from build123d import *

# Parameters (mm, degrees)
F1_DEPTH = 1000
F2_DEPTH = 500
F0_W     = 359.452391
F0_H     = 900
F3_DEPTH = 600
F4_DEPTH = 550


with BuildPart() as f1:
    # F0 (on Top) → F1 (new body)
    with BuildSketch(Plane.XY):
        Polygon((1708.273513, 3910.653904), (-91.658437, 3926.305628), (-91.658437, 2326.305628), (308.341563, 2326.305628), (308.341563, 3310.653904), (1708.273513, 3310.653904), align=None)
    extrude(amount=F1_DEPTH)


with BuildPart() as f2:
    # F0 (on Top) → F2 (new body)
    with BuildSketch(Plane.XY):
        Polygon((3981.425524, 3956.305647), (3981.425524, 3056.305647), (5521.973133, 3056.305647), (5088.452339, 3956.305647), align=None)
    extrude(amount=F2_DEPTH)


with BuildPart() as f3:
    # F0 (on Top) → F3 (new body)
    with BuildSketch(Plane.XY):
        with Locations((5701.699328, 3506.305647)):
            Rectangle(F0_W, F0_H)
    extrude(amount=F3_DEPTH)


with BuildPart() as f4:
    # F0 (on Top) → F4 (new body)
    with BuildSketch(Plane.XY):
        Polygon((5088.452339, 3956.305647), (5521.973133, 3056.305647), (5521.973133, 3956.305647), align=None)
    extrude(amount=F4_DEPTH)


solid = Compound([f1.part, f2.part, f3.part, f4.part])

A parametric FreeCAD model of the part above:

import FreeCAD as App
import Part
import Sketcher

V = App.Vector
Q = App.Units.Quantity

doc = App.newDocument("Part")
body = doc.addObject("PartDesign::Body", "Body")

sketch1 = body.newObject("Sketcher::SketchObject", "Sketch")
sketch1.AttachmentSupport = (doc.getObject("XY_Plane"), [""])
sketch1.MapMode = "FlatFace"
sketch1.addGeometry([
    Part.LineSegment(V(1708.273513, 3910.653904, 0), V(-91.658437, 3926.305628, 0)),
    Part.LineSegment(V(-91.658437, 3926.305628, 0), V(-91.658437, 2326.305628, 0)),
    Part.LineSegment(V(-91.658437, 2326.305628, 0), V(308.341563, 2326.305628, 0)),
    Part.LineSegment(V(308.341563, 2326.305628, 0), V(308.341563, 3310.653904, 0)),
    Part.LineSegment(V(308.341563, 3310.653904, 0), V(1708.273513, 3310.653904, 0)),
    Part.LineSegment(V(1708.273513, 3310.653904, 0), V(1708.273513, 3910.653904, 0)),
], False)
sketch1.addConstraint([
    Sketcher.Constraint("Coincident", 0, 2, 1, 1),
    Sketcher.Constraint("Coincident", 1, 2, 2, 1),
    Sketcher.Constraint("Coincident", 2, 2, 3, 1),
    Sketcher.Constraint("Coincident", 3, 2, 4, 1),
    Sketcher.Constraint("Coincident", 4, 2, 5, 1),
    Sketcher.Constraint("Coincident", 5, 2, 0, 1),
    Sketcher.Constraint("Vertical", 1),
    Sketcher.Constraint("Horizontal", 2),
    Sketcher.Constraint("Vertical", 3),
    Sketcher.Constraint("Horizontal", 4),
    Sketcher.Constraint("Vertical", 5),
    Sketcher.Constraint("DistanceX", 2, 1, 2, 2, Q("400 mm")),
    Sketcher.Constraint("DistanceY", 1, 2, 1, 1, Q("1600 mm")),
    Sketcher.Constraint("DistanceY", 5, 1, 5, 2, Q("600 mm")),
    Sketcher.Constraint("Distance", 0, Q("1800 mm")),
    Sketcher.Constraint("DistanceX", 4, 1, 4, 2, Q("1399.93195 mm")),
    Sketcher.Constraint("DistanceY", -1, 1, 0, 2, Q("3926.305628 mm")),
    Sketcher.Constraint("DistanceX", 0, 2, -1, 1, Q("91.658437 mm")),
])
pad1 = body.newObject("PartDesign::Pad", "Pad")
pad1.Profile = sketch1
pad1.Length = 1000
body2 = doc.addObject("PartDesign::Body", "Body001")

sketch2 = body2.newObject("Sketcher::SketchObject", "Sketch001")
sketch2.AttachmentSupport = (doc.getObject("XY_Plane001"), [""])
sketch2.MapMode = "FlatFace"
sketch2.addGeometry([
    Part.LineSegment(V(3981, 3956, 0), V(3981, 3056, 0)),
    Part.LineSegment(V(3981, 3056, 0), V(5522, 3056, 0)),
    Part.LineSegment(V(5522, 3056, 0), V(5088, 3956, 0)),
    Part.LineSegment(V(5088, 3956, 0), V(3981, 3956, 0)),
], False)
sketch2.addConstraint([
    Sketcher.Constraint("Coincident", 0, 2, 1, 1),
    Sketcher.Constraint("Coincident", 1, 2, 2, 1),
    Sketcher.Constraint("Coincident", 2, 2, 3, 1),
    Sketcher.Constraint("Coincident", 3, 2, 0, 1),
    Sketcher.Constraint("Vertical", 0),
    Sketcher.Constraint("Horizontal", 1),
    Sketcher.Constraint("Horizontal", 3),
    Sketcher.Constraint("DistanceY", 0, 2, 0, 1, Q("900 mm")),
    Sketcher.Constraint("DistanceX", 1, 1, 1, 2, Q("1540.547609 mm")),
    Sketcher.Constraint("Distance", 2, Q("998.969609 mm")),
    Sketcher.Constraint("DistanceX", -1, 1, 2, 2, Q("5088.452339 mm")),
    Sketcher.Constraint("DistanceY", -1, 1, 0, 2, Q("3056.305647 mm")),
])
pad2 = body2.newObject("PartDesign::Pad", "Pad001")
pad2.Profile = sketch2
pad2.Length = 500
body3 = doc.addObject("PartDesign::Body", "Body002")

sketch3 = body3.newObject("Sketcher::SketchObject", "Sketch002")
sketch3.AttachmentSupport = (doc.getObject("XY_Plane002"), [""])
sketch3.MapMode = "FlatFace"
sketch3.addGeometry([
    Part.LineSegment(V(5522, 3956, 0), V(5522, 3056, 0)),
    Part.LineSegment(V(5522, 3056, 0), V(5881, 3056, 0)),
    Part.LineSegment(V(5881, 3056, 0), V(5881, 3956, 0)),
    Part.LineSegment(V(5881, 3956, 0), V(5522, 3956, 0)),
], False)
sketch3.addConstraint([
    Sketcher.Constraint("Coincident", 0, 2, 1, 1),
    Sketcher.Constraint("Coincident", 1, 2, 2, 1),
    Sketcher.Constraint("Coincident", 2, 2, 3, 1),
    Sketcher.Constraint("Coincident", 3, 2, 0, 1),
    Sketcher.Constraint("Vertical", 0),
    Sketcher.Constraint("Horizontal", 1),
    Sketcher.Constraint("Vertical", 2),
    Sketcher.Constraint("Horizontal", 3),
    Sketcher.Constraint("DistanceY", 0, 2, 0, 1, Q("900 mm")),
    Sketcher.Constraint("DistanceX", 1, 1, 1, 2, Q("359.452391 mm")),
    Sketcher.Constraint("DistanceX", -1, 1, 0, 2, Q("5521.973133 mm")),
    Sketcher.Constraint("DistanceY", -1, 1, 0, 2, Q("3056.305647 mm")),
])
pad3 = body3.newObject("PartDesign::Pad", "Pad002")
pad3.Profile = sketch3
pad3.Length = 600
body4 = doc.addObject("PartDesign::Body", "Body003")

sketch4 = body4.newObject("Sketcher::SketchObject", "Sketch003")
sketch4.AttachmentSupport = (doc.getObject("XY_Plane003"), [""])
sketch4.MapMode = "FlatFace"
sketch4.addGeometry([
    Part.LineSegment(V(5088, 3956, 0), V(5522, 3056, 0)),
    Part.LineSegment(V(5522, 3056, 0), V(5522, 3956, 0)),
    Part.LineSegment(V(5522, 3956, 0), V(5088, 3956, 0)),
], False)
sketch4.addConstraint([
    Sketcher.Constraint("Coincident", 0, 2, 1, 1),
    Sketcher.Constraint("Coincident", 1, 2, 2, 1),
    Sketcher.Constraint("Coincident", 2, 2, 0, 1),
    Sketcher.Constraint("Vertical", 1),
    Sketcher.Constraint("Horizontal", 2),
    Sketcher.Constraint("DistanceY", 1, 1, 1, 2, Q("900 mm")),
    Sketcher.Constraint("Distance", 0, Q("998.969609 mm")),
    Sketcher.Constraint("DistanceX", -1, 1, 2, 2, Q("5088.452339 mm")),
    Sketcher.Constraint("DistanceY", -1, 1, 0, 2, Q("3056.305647 mm")),
])
pad4 = body4.newObject("PartDesign::Pad", "Pad003")
pad4.Profile = sketch4
pad4.Length = 550

doc.recompute()
